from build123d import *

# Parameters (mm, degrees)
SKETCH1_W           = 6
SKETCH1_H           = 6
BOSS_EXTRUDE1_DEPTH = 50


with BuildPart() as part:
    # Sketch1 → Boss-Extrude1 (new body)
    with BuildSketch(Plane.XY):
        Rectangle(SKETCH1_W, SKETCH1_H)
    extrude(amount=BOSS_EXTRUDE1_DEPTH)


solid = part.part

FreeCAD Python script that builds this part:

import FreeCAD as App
import Part
import Sketcher

V = App.Vector

doc = App.newDocument("Part")
body = doc.addObject("PartDesign::Body", "Body")

# Sketch on XY plane
sketch1 = doc.addObject("Sketcher::SketchObject", "Sketch")
body.addObject(sketch1)
sketch1.AttachmentSupport = (doc.XY_Plane, [""])
sketch1.MapMode = "FlatFace"
sketch1.addGeometry([
    Part.LineSegment(V(-3, 3, 0), V(-3, -3, 0)),
    Part.LineSegment(V(-3, -3, 0), V(3, -3, 0)),
    Part.LineSegment(V(3, -3, 0), V(3, 3, 0)),
    Part.LineSegment(V(3, 3, 0), V(-3, 3, 0)),
], False)
sketch1.addConstraint([
    Sketcher.Constraint("Coincident", 0, 2, 1, 1),
    Sketcher.Constraint("Coincident", 1, 2, 2, 1),
    Sketcher.Constraint("Coincident", 2, 2, 3, 1),
    Sketcher.Constraint("Coincident", 3, 2, 0, 1),
    Sketcher.Constraint("Vertical", 0),
    Sketcher.Constraint("Horizontal", 1),
    Sketcher.Constraint("Vertical", 2),
    Sketcher.Constraint("Horizontal", 3),
    Sketcher.Constraint("Symmetric", 0, 2, 2, 2, -1, 1),
    Sketcher.Constraint("Equal", 3, 0),
    Sketcher.Constraint("DistanceX", 1, 1, 1, 2, 6.0),
])
pad1 = doc.addObject("PartDesign::Pad", "Pad")
body.addObject(pad1)
pad1.Profile = sketch1
pad1.Length = 50

doc.recompute()
